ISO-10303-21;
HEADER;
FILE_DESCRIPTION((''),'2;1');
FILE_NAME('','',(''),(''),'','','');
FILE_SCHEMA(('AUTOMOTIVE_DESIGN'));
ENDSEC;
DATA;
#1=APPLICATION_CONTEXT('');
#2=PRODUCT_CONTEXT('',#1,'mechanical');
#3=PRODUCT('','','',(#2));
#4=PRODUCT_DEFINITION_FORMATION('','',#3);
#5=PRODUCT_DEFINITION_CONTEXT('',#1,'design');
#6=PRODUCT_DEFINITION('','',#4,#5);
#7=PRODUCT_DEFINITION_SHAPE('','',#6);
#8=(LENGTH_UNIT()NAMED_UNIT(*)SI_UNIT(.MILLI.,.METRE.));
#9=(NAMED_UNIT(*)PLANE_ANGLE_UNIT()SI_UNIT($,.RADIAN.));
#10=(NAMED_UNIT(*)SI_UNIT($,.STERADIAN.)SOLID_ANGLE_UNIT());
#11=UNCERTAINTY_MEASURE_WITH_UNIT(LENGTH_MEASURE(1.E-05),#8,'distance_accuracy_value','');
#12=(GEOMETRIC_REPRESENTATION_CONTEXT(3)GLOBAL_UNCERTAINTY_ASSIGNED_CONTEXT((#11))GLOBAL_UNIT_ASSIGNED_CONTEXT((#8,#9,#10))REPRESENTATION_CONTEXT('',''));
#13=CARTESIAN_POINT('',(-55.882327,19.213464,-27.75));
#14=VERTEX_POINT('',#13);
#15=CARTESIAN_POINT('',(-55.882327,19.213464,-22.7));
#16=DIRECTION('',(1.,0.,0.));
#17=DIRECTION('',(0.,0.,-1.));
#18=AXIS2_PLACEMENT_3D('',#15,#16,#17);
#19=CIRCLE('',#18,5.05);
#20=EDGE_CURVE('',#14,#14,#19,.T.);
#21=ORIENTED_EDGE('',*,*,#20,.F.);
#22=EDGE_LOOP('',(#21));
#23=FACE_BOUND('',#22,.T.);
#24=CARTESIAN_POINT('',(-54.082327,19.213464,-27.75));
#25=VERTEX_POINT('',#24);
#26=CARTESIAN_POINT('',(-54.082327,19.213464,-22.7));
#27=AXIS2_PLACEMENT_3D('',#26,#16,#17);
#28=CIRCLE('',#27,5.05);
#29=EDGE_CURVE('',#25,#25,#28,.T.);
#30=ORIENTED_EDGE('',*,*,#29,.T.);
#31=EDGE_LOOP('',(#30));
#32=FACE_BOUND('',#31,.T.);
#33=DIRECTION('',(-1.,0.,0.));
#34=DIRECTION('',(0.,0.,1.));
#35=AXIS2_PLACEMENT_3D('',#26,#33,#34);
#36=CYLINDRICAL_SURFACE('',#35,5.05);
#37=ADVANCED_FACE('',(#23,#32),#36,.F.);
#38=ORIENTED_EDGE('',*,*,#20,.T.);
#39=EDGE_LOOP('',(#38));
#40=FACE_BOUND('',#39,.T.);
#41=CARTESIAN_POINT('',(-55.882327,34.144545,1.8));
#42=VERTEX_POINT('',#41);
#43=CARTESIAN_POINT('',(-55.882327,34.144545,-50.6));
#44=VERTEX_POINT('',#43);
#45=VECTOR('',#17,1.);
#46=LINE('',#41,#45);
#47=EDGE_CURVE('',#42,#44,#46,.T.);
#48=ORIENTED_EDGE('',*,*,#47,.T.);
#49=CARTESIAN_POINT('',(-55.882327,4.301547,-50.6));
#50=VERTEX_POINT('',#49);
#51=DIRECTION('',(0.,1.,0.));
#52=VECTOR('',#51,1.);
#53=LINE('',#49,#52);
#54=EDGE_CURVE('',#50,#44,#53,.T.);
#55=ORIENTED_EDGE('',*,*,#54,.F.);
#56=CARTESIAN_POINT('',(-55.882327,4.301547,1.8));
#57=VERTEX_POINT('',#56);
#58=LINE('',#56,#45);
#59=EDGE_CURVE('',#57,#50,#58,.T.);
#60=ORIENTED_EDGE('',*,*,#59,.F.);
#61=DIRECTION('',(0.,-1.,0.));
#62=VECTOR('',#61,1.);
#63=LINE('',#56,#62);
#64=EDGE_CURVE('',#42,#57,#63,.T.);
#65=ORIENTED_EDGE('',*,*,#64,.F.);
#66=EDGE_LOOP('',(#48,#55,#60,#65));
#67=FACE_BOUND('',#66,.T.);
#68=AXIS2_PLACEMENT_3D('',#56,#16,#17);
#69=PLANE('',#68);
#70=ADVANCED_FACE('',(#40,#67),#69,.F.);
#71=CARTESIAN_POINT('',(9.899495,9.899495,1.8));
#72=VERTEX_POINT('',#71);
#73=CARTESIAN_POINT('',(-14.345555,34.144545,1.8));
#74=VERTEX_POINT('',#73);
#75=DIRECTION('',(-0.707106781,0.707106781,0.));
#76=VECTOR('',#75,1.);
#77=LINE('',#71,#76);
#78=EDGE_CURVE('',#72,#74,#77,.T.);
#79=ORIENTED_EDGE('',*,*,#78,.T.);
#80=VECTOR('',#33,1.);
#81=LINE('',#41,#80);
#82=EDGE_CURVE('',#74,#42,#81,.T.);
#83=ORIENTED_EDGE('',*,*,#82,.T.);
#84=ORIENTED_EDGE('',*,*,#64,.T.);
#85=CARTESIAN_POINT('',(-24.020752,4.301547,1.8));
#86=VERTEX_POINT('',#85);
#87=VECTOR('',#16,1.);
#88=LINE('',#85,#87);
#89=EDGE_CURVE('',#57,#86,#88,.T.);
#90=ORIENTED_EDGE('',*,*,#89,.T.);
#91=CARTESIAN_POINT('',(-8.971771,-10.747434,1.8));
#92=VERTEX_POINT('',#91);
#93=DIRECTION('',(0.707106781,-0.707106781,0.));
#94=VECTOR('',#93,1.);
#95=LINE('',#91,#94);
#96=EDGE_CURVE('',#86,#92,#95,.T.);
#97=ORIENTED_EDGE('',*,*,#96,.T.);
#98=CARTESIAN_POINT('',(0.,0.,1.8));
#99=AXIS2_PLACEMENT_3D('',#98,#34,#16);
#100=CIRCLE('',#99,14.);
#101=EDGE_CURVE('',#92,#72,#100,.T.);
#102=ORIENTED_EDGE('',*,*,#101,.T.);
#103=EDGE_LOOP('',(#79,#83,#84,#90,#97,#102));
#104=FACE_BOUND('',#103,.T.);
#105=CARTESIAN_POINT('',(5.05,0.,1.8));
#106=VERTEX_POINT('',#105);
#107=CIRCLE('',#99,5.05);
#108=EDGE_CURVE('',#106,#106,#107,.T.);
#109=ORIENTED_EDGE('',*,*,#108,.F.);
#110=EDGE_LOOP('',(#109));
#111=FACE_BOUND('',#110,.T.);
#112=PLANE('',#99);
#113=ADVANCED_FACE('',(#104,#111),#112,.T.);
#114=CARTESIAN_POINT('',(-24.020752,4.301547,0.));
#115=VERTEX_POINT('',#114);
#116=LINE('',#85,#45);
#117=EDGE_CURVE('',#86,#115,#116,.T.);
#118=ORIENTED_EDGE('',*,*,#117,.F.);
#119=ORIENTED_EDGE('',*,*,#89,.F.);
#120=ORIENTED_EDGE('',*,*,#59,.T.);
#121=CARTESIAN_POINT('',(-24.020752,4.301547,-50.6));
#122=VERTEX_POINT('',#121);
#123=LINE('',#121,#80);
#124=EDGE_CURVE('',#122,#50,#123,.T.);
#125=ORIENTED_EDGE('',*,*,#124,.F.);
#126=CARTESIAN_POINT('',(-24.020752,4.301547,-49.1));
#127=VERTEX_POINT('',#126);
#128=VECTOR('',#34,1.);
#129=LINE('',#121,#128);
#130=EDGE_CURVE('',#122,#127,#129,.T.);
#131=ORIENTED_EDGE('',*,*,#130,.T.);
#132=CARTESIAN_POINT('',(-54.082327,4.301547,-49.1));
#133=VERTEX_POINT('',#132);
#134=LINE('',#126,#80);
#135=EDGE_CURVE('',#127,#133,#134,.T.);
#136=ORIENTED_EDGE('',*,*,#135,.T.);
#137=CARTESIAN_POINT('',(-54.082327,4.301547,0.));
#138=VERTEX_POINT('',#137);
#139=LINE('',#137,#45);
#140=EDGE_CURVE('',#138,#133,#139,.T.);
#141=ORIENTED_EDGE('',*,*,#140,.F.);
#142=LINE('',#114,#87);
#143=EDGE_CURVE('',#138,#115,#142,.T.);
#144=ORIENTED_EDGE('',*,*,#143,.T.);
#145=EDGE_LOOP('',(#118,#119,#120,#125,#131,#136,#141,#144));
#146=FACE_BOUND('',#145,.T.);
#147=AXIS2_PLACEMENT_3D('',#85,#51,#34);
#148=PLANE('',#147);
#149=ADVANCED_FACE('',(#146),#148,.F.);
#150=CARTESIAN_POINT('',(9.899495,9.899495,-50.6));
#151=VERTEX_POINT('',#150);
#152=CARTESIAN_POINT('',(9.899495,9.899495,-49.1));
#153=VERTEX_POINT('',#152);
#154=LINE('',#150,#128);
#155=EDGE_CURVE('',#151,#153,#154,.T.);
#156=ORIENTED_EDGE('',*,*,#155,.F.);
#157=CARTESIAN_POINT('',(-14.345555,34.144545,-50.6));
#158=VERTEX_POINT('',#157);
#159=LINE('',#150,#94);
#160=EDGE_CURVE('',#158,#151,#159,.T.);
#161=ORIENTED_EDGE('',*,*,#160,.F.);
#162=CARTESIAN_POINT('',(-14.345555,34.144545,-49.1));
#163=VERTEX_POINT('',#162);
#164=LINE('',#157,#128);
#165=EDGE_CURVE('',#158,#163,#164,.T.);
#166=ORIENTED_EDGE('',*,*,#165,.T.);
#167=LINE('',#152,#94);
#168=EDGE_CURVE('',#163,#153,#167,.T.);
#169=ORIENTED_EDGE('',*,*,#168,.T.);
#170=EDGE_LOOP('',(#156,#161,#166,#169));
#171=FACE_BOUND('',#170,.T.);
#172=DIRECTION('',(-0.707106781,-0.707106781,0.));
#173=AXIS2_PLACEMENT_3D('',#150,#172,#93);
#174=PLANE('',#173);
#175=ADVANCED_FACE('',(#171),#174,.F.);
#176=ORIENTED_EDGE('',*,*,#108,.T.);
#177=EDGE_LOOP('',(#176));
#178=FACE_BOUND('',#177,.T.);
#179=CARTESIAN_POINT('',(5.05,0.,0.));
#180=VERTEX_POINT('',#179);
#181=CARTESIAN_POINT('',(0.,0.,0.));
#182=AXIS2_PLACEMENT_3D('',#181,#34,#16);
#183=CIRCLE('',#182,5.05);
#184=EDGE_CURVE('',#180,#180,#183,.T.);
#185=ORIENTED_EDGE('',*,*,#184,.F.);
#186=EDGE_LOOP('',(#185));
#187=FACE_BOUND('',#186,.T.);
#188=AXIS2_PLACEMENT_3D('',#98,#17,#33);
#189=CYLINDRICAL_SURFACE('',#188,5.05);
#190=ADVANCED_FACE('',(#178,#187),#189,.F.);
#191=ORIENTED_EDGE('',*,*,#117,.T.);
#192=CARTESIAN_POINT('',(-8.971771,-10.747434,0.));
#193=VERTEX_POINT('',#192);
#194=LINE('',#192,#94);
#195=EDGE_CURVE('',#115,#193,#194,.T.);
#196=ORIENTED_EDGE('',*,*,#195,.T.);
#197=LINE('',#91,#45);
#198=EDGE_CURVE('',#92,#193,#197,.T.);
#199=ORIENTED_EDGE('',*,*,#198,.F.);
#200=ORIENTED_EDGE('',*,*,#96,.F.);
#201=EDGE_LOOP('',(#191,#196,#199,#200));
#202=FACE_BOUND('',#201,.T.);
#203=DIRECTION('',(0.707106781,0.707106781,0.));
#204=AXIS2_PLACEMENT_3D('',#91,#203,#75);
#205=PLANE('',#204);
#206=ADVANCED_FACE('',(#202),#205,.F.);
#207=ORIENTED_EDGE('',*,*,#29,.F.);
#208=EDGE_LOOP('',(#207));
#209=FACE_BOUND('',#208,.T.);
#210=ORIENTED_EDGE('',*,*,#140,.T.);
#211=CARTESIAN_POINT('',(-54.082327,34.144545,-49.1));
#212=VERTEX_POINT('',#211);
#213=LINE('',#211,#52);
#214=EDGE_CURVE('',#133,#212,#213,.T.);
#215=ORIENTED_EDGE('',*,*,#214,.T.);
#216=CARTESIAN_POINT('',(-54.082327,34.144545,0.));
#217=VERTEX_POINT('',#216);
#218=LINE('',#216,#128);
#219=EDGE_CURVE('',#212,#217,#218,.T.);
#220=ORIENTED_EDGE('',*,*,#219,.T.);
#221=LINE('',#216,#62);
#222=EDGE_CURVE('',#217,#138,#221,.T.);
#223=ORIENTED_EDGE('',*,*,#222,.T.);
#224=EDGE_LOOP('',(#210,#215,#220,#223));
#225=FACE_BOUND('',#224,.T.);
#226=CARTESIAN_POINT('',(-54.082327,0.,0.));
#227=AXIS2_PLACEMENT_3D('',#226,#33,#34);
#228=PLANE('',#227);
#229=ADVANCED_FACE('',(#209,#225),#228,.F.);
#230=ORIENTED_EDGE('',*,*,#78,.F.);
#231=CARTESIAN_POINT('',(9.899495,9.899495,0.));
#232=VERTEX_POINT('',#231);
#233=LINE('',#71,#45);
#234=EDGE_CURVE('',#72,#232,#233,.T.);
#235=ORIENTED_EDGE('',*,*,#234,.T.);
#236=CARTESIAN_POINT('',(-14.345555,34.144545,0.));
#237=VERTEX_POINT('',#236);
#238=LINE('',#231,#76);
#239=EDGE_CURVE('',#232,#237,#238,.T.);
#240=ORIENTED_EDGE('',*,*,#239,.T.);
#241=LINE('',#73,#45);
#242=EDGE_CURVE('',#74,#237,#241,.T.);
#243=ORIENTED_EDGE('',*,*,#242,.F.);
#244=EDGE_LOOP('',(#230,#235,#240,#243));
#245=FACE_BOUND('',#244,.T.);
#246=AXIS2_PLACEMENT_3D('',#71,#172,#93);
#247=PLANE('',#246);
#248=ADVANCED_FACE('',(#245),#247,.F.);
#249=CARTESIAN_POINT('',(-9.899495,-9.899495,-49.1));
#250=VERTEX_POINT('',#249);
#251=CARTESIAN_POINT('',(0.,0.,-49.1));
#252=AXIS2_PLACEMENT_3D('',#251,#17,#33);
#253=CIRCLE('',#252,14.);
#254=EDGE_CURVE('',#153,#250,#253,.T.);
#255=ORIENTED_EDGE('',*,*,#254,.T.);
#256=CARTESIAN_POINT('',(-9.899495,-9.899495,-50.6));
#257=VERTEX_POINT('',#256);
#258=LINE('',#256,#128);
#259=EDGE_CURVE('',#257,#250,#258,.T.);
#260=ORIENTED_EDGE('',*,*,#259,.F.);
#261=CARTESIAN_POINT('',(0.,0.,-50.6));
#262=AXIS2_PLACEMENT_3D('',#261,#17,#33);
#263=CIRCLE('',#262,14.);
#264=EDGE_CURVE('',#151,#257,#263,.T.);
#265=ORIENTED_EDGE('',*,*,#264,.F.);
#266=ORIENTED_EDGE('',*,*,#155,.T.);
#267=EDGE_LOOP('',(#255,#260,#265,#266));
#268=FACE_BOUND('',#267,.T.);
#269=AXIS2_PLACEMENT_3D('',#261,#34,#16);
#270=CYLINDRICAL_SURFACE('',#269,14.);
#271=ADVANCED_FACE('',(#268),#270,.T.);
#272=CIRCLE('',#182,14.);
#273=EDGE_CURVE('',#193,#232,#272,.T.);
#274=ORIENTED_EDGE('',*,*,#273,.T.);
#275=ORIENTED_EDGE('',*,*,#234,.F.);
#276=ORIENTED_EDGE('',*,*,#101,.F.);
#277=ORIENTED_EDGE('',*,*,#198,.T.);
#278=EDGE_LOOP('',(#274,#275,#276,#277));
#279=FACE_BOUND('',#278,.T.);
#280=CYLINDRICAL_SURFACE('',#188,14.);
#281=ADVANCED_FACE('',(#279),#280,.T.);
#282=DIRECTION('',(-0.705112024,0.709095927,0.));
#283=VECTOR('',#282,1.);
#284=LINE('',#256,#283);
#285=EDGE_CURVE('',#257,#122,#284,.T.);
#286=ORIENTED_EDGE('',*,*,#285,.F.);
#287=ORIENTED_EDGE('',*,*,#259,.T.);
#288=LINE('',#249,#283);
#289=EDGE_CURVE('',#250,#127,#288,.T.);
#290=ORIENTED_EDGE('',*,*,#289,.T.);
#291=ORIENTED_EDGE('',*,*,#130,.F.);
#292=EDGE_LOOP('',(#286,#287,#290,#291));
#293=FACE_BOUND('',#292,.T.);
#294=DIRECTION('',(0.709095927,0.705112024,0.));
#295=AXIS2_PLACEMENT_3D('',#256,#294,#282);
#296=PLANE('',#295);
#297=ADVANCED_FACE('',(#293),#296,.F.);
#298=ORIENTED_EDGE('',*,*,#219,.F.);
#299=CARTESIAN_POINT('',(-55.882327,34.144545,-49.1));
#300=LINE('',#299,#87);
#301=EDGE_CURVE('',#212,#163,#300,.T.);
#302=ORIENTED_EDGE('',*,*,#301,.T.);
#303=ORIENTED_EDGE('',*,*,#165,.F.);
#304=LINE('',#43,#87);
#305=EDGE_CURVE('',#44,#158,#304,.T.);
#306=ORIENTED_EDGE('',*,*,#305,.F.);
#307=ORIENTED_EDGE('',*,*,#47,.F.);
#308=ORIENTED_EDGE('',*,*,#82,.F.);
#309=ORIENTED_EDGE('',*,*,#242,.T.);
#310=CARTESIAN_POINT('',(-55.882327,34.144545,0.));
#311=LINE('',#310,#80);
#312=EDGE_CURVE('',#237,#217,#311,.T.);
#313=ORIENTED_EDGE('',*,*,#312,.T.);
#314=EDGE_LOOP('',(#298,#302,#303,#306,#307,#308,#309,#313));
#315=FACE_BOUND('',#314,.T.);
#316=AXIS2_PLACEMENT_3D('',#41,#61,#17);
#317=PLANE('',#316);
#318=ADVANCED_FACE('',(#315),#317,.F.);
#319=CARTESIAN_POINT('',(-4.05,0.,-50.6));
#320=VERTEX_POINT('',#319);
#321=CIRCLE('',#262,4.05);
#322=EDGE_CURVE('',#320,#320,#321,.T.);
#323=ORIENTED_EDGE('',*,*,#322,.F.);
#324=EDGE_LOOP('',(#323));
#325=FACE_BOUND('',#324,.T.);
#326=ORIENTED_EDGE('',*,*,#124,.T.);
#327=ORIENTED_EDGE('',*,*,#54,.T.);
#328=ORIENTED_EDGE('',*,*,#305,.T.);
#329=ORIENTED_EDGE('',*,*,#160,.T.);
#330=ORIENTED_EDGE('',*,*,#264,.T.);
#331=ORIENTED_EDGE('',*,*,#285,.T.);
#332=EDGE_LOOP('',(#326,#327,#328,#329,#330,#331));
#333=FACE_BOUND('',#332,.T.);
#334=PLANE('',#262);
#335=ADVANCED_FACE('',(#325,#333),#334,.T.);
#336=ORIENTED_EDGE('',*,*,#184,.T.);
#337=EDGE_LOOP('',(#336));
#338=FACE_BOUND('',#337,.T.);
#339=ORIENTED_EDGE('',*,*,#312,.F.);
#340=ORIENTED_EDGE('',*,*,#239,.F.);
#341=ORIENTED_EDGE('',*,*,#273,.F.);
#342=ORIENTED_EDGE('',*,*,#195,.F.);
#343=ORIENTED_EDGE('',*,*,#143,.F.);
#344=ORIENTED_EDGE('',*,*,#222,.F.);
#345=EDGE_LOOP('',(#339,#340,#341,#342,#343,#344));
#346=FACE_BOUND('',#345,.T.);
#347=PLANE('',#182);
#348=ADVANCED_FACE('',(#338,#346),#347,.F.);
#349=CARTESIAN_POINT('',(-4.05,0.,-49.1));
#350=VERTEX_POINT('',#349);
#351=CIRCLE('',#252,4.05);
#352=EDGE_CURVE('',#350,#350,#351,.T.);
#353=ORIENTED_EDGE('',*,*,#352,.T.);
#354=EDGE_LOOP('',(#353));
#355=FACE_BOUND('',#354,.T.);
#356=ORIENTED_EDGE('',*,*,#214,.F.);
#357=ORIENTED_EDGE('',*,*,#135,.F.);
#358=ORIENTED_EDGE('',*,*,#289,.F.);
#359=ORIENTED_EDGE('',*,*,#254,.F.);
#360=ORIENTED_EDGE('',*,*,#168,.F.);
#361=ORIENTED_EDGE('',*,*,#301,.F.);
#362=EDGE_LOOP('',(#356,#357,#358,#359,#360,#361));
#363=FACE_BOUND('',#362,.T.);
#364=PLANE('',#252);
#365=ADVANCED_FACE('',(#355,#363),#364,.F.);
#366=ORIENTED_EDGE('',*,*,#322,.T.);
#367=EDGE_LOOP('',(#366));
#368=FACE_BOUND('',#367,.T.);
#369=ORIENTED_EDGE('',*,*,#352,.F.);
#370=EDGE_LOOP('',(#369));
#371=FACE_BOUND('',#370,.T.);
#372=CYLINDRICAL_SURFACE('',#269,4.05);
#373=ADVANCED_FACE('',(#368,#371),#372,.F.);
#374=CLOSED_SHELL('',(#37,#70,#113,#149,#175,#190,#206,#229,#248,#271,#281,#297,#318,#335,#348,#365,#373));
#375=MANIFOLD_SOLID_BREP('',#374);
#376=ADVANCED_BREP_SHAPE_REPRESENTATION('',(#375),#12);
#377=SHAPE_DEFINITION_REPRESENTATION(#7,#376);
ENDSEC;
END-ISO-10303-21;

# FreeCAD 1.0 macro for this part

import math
import FreeCAD as App
import Part
import Sketcher

V = App.Vector
Q = App.Units.Quantity

doc = App.newDocument("Part")
params = doc.addObject("Spreadsheet::Sheet", "Params")
for row, (alias, value) in enumerate([
    ("sketch1_radius", "14 mm"),
    ("sketch1_diameter", "10.1 mm"),
    ("pad1_length", "1.8 mm"),
    ("sketch2_diameter", "10.1 mm"),
    ("sketch2_height", "49.1 mm"),
    ("pad2_length", "1.8 mm"),
    ("sketch3_radius", "14 mm"),
    ("sketch3_diameter", "8.1 mm"),
    ("pad3_length", "1.5 mm"),
], start=1):
    params.set(f"A{row}", alias)
    params.set(f"B{row}", "=" + value)
    params.setAlias(f"B{row}", alias)

body = doc.addObject("PartDesign::Body", "Body")

# Sketch on XY plane
sketch1 = body.newObject("Sketcher::SketchObject", "Sketch")
sketch1.AttachmentSupport = (doc.getObject("XY_Plane"), [""])
sketch1.MapMode = "FlatFace"
sketch1.addGeometry([
    Part.LineSegment(V(10, 10, 0), V(-14, 34, 0)),  # 0
    Part.LineSegment(V(-14, 34, 0), V(-56, 34, 0)),  # 1
    Part.LineSegment(V(-56, 34, 0), V(-56, 4, 0)),  # 2
    Part.LineSegment(V(-56, 4, 0), V(-24, 4, 0)),  # 3
    Part.LineSegment(V(-24, 4, 0), V(-9, -11, 0)),  # 4
    Part.ArcOfCircle(Part.Circle(V(0, 0, 0), V(0, 0, 1), 14), math.radians(-130), math.radians(45)),  # 5
    Part.Circle(V(0, 0, 0), V(0, 0, 1), 5),  # 6
], False)
sketch1.addConstraint([
    Sketcher.Constraint("Coincident", 0, 2, 1, 1),
    Sketcher.Constraint("Coincident", 1, 2, 2, 1),
    Sketcher.Constraint("Coincident", 2, 2, 3, 1),
    Sketcher.Constraint("Coincident", 3, 2, 4, 1),
    Sketcher.Constraint("Coincident", 4, 2, 5, 1),
    Sketcher.Constraint("Tangent", 5, 2, 0, 1),
    Sketcher.Constraint("Horizontal", 1),
    Sketcher.Constraint("Vertical", 2),
    Sketcher.Constraint("Horizontal", 3),
    Sketcher.Constraint("Coincident", 5, 3, -1, 1),
    Sketcher.Constraint("Coincident", 6, 3, -1, 1),
    Sketcher.Constraint("Parallel", 0, 4),
    Sketcher.Constraint("Radius", 5, 14.0),
    Sketcher.Constraint("Diameter", 6, 10.1),
    Sketcher.Constraint("Angle", 0, Q("135 deg")),
    Sketcher.Constraint("DistanceX", 1, 2, 1, 1, 41.536772),
    Sketcher.Constraint("Distance", 0, 34.287679),
    Sketcher.Constraint("DistanceX", 3, 1, 3, 2, 31.861575),
    Sketcher.Constraint("DistanceY", 2, 2, 2, 1, 29.842998),
])
sketch1.setExpression("Constraints[12]", "Params.sketch1_radius")
sketch1.setExpression("Constraints[13]", "Params.sketch1_diameter")
pad1 = body.newObject("PartDesign::Pad", "Pad")
pad1.Profile = sketch1
pad1.setExpression("Length", "Params.pad1_length")

# Sketch on YZ plane
sketch2 = body.newObject("Sketcher::SketchObject", "Sketch001")
sketch2.AttachmentSupport = (doc.getObject("YZ_Plane"), [""])
sketch2.MapMode = "FlatFace"
sketch2.AttachmentOffset = App.Placement(V(0, 0, -55.882327), App.Rotation())
sketch2.addGeometry([
    Part.LineSegment(V(34, 0, 0), V(4, 0, 0)),  # 0
    Part.LineSegment(V(4, 0, 0), V(4, -49, 0)),  # 1
    Part.LineSegment(V(4, -49, 0), V(34, -49, 0)),  # 2
    Part.LineSegment(V(34, -49, 0), V(34, 0, 0)),  # 3
    Part.Circle(V(19, -23, 0), V(0, 0, 1), 5),  # 4
], False)
sketch2.addConstraint([
    Sketcher.Constraint("Coincident", 0, 2, 1, 1),
    Sketcher.Constraint("Coincident", 1, 2, 2, 1),
    Sketcher.Constraint("Coincident", 2, 2, 3, 1),
    Sketcher.Constraint("Coincident", 3, 2, 0, 1),
    Sketcher.Constraint("Horizontal", 0),
    Sketcher.Constraint("Vertical", 1),
    Sketcher.Constraint("Horizontal", 2),
    Sketcher.Constraint("Vertical", 3),
    Sketcher.Constraint("PointOnObject", 0, 2, -1),
    Sketcher.Constraint("Diameter", 4, 10.1),
    Sketcher.Constraint("DistanceY", 1, 2, 1, 1, 49.1),
    Sketcher.Constraint("DistanceY", 4, 3, -1, 1, 22.7),
    Sketcher.Constraint("DistanceX", 0, 2, 0, 1, 29.842998),
    Sketcher.Constraint("DistanceX", 4, 3, 2, 2, 14.931081),
    Sketcher.Constraint("DistanceX", -1, 1, 4, 3, 19.213464),
])
sketch2.setExpression("Constraints[9]", "Params.sketch2_diameter")
sketch2.setExpression("Constraints[10]", "Params.sketch2_height")
pad2 = body.newObject("PartDesign::Pad", "Pad001")
pad2.Profile = sketch2
pad2.setExpression("Length", "Params.pad2_length")

# Sketch on XY plane
sketch3 = body.newObject("Sketcher::SketchObject", "Sketch002")
sketch3.AttachmentSupport = (doc.getObject("XY_Plane"), [""])
sketch3.MapMode = "FlatFace"
sketch3.AttachmentOffset = App.Placement(V(0, 0, -50.6), App.Rotation())
sketch3.addGeometry([
    Part.LineSegment(V(-14.3, 34.1, 0), V(9.9, 9.9, 0)),  # 0
    Part.ArcOfCircle(Part.Circle(V(0, 0, 0), V(0, 0, 1), 14), math.radians(-135), math.radians(45)),  # 1
    Part.LineSegment(V(-9.9, -9.9, 0), V(-24, 4.3, 0)),  # 2
    Part.LineSegment(V(-24, 4.3, 0), V(-55.9, 4.3, 0)),  # 3
    Part.LineSegment(V(-55.9, 4.3, 0), V(-55.9, 34.1, 0)),  # 4
    Part.LineSegment(V(-55.9, 34.1, 0), V(-14.3, 34.1, 0)),  # 5
    Part.Circle(V(0, 0, 0), V(0, 0, 1), 4),  # 6
], False)
sketch3.addConstraint([
    Sketcher.Constraint("Tangent", 0, 2, 1, 2),
    Sketcher.Constraint("Coincident", 1, 1, 2, 1),
    Sketcher.Constraint("Coincident", 2, 2, 3, 1),
    Sketcher.Constraint("Coincident", 3, 2, 4, 1),
    Sketcher.Constraint("Coincident", 4, 2, 5, 1),
    Sketcher.Constraint("Coincident", 5, 2, 0, 1),
    Sketcher.Constraint("Horizontal", 3),
    Sketcher.Constraint("Vertical", 4),
    Sketcher.Constraint("Horizontal", 5),
    Sketcher.Constraint("Coincident", 1, 3, -1, 1),
    Sketcher.Constraint("Coincident", 6, 3, -1, 1),
    Sketcher.Constraint("Radius", 1, 14.0),
    Sketcher.Constraint("Diameter", 6, 8.1),
    Sketcher.Constraint("Angle", 0, Q("-45 deg")),
    Sketcher.Constraint("DistanceX", 5, 1, 5, 2, 41.536772),
    Sketcher.Constraint("Distance", 0, 34.287679),
    Sketcher.Constraint("Distance", 2, 20.026969),
    Sketcher.Constraint("DistanceX", 3, 2, 3, 1, 31.861575),
    Sketcher.Constraint("DistanceY", 4, 1, 4, 2, 29.842998),
])
sketch3.setExpression("Constraints[11]", "Params.sketch3_radius")
sketch3.setExpression("Constraints[12]", "Params.sketch3_diameter")
pad3 = body.newObject("PartDesign::Pad", "Pad002")
pad3.Profile = sketch3
pad3.setExpression("Length", "Params.pad3_length")

doc.recompute()
